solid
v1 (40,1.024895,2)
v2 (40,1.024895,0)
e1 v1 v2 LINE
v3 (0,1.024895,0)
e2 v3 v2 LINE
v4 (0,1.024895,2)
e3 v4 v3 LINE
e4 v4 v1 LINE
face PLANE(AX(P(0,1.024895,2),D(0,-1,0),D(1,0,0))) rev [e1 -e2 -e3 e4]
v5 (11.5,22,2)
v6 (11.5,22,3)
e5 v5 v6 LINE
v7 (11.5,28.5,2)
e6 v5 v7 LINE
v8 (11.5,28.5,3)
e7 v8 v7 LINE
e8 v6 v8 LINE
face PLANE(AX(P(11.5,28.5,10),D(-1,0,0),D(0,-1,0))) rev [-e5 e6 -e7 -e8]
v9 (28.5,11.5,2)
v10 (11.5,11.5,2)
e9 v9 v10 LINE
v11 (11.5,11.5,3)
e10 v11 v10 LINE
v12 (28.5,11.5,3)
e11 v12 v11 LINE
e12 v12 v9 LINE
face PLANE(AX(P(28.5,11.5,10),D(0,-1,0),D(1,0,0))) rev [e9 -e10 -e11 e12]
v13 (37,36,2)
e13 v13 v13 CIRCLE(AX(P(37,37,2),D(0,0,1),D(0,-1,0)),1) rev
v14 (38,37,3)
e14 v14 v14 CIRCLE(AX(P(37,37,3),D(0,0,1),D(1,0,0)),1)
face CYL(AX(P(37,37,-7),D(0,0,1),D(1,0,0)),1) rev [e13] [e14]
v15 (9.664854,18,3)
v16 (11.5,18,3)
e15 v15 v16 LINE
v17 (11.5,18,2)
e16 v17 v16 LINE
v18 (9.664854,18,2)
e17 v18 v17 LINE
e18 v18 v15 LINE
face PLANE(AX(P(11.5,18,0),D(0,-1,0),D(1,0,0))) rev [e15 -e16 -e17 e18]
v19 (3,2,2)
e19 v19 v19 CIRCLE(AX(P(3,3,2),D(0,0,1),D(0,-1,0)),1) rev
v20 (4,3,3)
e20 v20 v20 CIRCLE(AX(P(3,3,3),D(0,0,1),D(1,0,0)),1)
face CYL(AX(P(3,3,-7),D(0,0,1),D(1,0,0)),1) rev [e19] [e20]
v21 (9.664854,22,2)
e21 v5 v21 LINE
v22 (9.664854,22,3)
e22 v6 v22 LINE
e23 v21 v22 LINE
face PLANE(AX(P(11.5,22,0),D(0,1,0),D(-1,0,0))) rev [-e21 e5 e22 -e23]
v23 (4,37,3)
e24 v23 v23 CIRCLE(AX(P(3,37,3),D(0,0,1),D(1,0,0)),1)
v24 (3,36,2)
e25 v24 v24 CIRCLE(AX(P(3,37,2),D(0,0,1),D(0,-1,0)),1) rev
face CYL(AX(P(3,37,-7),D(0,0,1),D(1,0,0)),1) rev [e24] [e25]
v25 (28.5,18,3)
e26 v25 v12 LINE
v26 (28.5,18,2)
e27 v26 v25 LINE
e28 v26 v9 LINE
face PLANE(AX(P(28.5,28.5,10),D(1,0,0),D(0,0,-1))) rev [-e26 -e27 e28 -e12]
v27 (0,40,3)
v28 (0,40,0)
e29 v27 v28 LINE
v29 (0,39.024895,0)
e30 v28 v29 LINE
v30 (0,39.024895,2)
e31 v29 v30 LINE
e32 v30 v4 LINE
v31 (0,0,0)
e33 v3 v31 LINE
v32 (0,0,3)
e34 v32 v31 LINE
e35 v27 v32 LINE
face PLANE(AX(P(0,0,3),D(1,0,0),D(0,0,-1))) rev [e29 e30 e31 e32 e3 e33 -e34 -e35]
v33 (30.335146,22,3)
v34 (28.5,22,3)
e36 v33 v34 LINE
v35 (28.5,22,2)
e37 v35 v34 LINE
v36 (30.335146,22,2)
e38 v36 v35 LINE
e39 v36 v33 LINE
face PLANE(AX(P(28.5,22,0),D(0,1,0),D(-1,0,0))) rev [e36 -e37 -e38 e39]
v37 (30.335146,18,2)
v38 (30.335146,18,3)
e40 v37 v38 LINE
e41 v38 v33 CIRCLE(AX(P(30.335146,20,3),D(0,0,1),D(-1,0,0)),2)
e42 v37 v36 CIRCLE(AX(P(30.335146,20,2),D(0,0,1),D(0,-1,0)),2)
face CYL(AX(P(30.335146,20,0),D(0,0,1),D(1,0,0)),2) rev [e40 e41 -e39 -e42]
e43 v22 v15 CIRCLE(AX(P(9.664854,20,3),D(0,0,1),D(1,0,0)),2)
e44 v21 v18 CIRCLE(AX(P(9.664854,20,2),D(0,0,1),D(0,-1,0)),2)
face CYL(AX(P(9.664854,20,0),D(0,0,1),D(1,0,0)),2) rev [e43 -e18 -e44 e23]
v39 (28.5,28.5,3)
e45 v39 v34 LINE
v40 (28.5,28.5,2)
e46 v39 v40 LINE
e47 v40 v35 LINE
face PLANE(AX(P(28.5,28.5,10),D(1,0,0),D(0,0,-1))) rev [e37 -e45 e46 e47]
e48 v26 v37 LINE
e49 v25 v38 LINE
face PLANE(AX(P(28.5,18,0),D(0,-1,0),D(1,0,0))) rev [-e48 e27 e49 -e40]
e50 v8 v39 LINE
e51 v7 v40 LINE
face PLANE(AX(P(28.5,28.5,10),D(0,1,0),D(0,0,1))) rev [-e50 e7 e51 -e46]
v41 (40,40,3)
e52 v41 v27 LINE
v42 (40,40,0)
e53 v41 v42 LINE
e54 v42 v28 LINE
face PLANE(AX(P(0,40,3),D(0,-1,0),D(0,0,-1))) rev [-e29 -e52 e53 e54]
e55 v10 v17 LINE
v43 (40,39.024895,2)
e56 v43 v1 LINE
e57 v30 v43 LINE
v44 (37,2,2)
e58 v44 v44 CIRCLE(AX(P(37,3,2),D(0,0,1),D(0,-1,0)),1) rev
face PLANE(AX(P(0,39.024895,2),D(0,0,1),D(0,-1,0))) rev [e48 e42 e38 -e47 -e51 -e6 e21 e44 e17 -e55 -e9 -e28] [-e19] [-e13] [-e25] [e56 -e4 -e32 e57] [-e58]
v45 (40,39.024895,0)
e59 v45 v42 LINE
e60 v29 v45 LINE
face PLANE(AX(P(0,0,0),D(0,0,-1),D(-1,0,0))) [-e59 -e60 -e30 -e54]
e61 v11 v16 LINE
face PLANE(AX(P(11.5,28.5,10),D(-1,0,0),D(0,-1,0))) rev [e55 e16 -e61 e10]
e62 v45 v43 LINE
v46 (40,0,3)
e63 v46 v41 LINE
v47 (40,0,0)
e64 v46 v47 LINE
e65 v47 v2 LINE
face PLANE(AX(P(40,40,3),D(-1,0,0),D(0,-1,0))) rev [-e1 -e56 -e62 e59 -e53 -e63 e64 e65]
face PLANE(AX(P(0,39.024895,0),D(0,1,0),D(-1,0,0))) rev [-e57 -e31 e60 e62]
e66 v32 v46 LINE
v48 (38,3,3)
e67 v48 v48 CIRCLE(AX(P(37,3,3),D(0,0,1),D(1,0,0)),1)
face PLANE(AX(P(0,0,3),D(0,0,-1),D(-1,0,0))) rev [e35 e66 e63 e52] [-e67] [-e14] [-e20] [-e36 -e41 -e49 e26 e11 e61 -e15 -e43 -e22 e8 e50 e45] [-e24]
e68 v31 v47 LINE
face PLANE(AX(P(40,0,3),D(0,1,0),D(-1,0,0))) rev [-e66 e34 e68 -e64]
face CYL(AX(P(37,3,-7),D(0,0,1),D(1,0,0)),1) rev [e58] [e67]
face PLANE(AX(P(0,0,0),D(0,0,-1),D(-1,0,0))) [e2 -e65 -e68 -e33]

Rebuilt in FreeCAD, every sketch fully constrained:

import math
import FreeCAD as App
import Part
import Sketcher

doc = App.newDocument("Part")
params = doc.addObject("Spreadsheet::Sheet", "Params")
for row, (alias, value) in enumerate([
    ("sketch1_width", "40 mm"),
    ("pad1_length", "3 mm"),
    ("sketch2_diameter", "2 mm"),
    ("pocket1_length", "10 mm"),
    ("sketch3_width", "17 mm"),
    ("pocket2_length", "10 mm"),
    ("sketch4_width", "38 mm"),
    ("sketch4_height", "2 mm"),
    ("sketch5_radius", "2 mm"),
], start=1):
    params.set(f"A{row}", alias)
    params.set(f"B{row}", "=" + value)
    params.setAlias(f"B{row}", alias)

body = doc.addObject("PartDesign::Body", "Body")

# Sketch on XY plane
sketch1 = body.newObject("Sketcher::SketchObject", "Sketch")
sketch1.AttachmentSupport = (doc.getObject("XY_Plane"), [""])
sketch1.MapMode = "FlatFace"
sketch1.addGeometry([
    Part.LineSegment(App.Vector(0, 40, 0), App.Vector(0, 0, 0)),
    Part.LineSegment(App.Vector(0, 0, 0), App.Vector(40, 0, 0)),
    Part.LineSegment(App.Vector(40, 0, 0), App.Vector(40, 40, 0)),
    Part.LineSegment(App.Vector(40, 40, 0), App.Vector(0, 40, 0)),
], False)
sketch1.addConstraint([
    Sketcher.Constraint("Coincident", 0, 2, 1, 1),
    Sketcher.Constraint("Coincident", 1, 2, 2, 1),
    Sketcher.Constraint("Coincident", 2, 2, 3, 1),
    Sketcher.Constraint("Coincident", 3, 2, 0, 1),
    Sketcher.Constraint("Vertical", 0),
    Sketcher.Constraint("Horizontal", 1),
    Sketcher.Constraint("Vertical", 2),
    Sketcher.Constraint("Horizontal", 3),
    Sketcher.Constraint("Coincident", 0, 2, -1, 1),
    Sketcher.Constraint("Equal", 3, 0),
    Sketcher.Constraint("DistanceX", 1, 1, 1, 2, 40.0),
])
sketch1.setExpression("Constraints[10]", "Params.sketch1_width")
pad1 = body.newObject("PartDesign::Pad", "Pad")
pad1.Profile = sketch1
pad1.setExpression("Length", "Params.pad1_length")

# Sketch on XY plane
sketch2 = body.newObject("Sketcher::SketchObject", "Sketch001")
sketch2.AttachmentSupport = (doc.getObject("XY_Plane"), [""])
sketch2.MapMode = "FlatFace"
sketch2.AttachmentOffset = App.Placement(App.Vector(0, 0, 3), App.Rotation())
sketch2.addGeometry([
    Part.Circle(App.Vector(3, 37, 0), App.Vector(0, 0, 1), 1),
    Part.Circle(App.Vector(3, 3, 0), App.Vector(0, 0, 1), 1),
    Part.Circle(App.Vector(37, 37, 0), App.Vector(0, 0, 1), 1),
    Part.Circle(App.Vector(37, 3, 0), App.Vector(0, 0, 1), 1),
], False)
sketch2.addConstraint([
    Sketcher.Constraint("Equal", 0, 1),
    Sketcher.Constraint("Equal", 1, 2),
    Sketcher.Constraint("Equal", 2, 3),
    Sketcher.Constraint("Horizontal", 0, 3, 2, 3),
    Sketcher.Constraint("Horizontal", 1, 3, 3, 3),
    Sketcher.Constraint("Vertical", 0, 3, 1, 3),
    Sketcher.Constraint("Vertical", 2, 3, 3, 3),
    Sketcher.Constraint("Diameter", 0, 2.0),
    Sketcher.Constraint("DistanceX", -1, 1, 0, 3, 3.0),
    Sketcher.Constraint("DistanceY", -1, 1, 0, 3, 37.0),
    Sketcher.Constraint("DistanceY", -1, 1, 1, 3, 3.0),
    Sketcher.Constraint("DistanceX", -1, 1, 2, 3, 37.0),
])
sketch2.setExpression("Constraints[7]", "Params.sketch2_diameter")
pocket1 = body.newObject("PartDesign::Pocket", "Pocket")
pocket1.Profile = sketch2
pocket1.setExpression("Length", "Params.pocket1_length")

# Sketch on XY plane
sketch3 = body.newObject("Sketcher::SketchObject", "Sketch002")
sketch3.AttachmentSupport = (doc.getObject("XY_Plane"), [""])
sketch3.MapMode = "FlatFace"
sketch3.addGeometry([
    Part.LineSegment(App.Vector(28, 28, 0), App.Vector(28, 12, 0)),
    Part.LineSegment(App.Vector(28, 12, 0), App.Vector(12, 12, 0)),
    Part.LineSegment(App.Vector(12, 12, 0), App.Vector(12, 28, 0)),
    Part.LineSegment(App.Vector(12, 28, 0), App.Vector(28, 28, 0)),
], False)
sketch3.addConstraint([
    Sketcher.Constraint("Coincident", 0, 2, 1, 1),
    Sketcher.Constraint("Coincident", 1, 2, 2, 1),
    Sketcher.Constraint("Coincident", 2, 2, 3, 1),
    Sketcher.Constraint("Coincident", 3, 2, 0, 1),
    Sketcher.Constraint("Vertical", 0),
    Sketcher.Constraint("Horizontal", 1),
    Sketcher.Constraint("Vertical", 2),
    Sketcher.Constraint("Horizontal", 3),
    Sketcher.Constraint("Equal", 3, 0),
    Sketcher.Constraint("DistanceX", 1, 2, 1, 1, 17.0),
    Sketcher.Constraint("DistanceX", -1, 1, 0, 2, 28.5),
    Sketcher.Constraint("DistanceY", -1, 1, 0, 2, 11.5),
])
sketch3.setExpression("Constraints[9]", "Params.sketch3_width")
pocket2 = body.newObject("PartDesign::Pocket", "Pocket001")
pocket2.Profile = sketch3
pocket2.setExpression("Length", "Params.pocket2_length")
pocket2.Reversed = True

# Sketch on YZ plane
sketch4 = body.newObject("Sketcher::SketchObject", "Sketch003")
sketch4.AttachmentSupport = (doc.getObject("YZ_Plane"), [""])
sketch4.MapMode = "FlatFace"
sketch4.AttachmentOffset = App.Placement(App.Vector(0, 0, 40), App.Rotation())
sketch4.addGeometry([
    Part.LineSegment(App.Vector(39, 2, 0), App.Vector(1, 2, 0)),
    Part.LineSegment(App.Vector(1, 2, 0), App.Vector(1, 0, 0)),
    Part.LineSegment(App.Vector(1, 0, 0), App.Vector(39, 0, 0)),
    Part.LineSegment(App.Vector(39, 0, 0), App.Vector(39, 2, 0)),
], False)
sketch4.addConstraint([
    Sketcher.Constraint("Coincident", 0, 2, 1, 1),
    Sketcher.Constraint("Coincident", 1, 2, 2, 1),
    Sketcher.Constraint("Coincident", 2, 2, 3, 1),
    Sketcher.Constraint("Coincident", 3, 2, 0, 1),
    Sketcher.Constraint("Horizontal", 0),
    Sketcher.Constraint("Vertical", 1),
    Sketcher.Constraint("Horizontal", 2),
    Sketcher.Constraint("Vertical", 3),
    Sketcher.Constraint("PointOnObject", 1, 2, -1),
    Sketcher.Constraint("DistanceX", 0, 2, 0, 1, 38.0),
    Sketcher.Constraint("DistanceY", 1, 2, 1, 1, 2.0),
    Sketcher.Constraint("DistanceX", -1, 1, 0, 2, 1.024895),
])
sketch4.setExpression("Constraints[9]", "Params.sketch4_width")
sketch4.setExpression("Constraints[10]", "Params.sketch4_height")
pocket3 = body.newObject("PartDesign::Pocket", "Pocket002")
pocket3.Profile = sketch4
pocket3.Type = "ThroughAll"

# Sketch on XY plane
sketch5 = body.newObject("Sketcher::SketchObject", "Sketch004")
sketch5.AttachmentSupport = (doc.getObject("XY_Plane"), [""])
sketch5.MapMode = "FlatFace"
sketch5.AttachmentOffset = App.Placement(App.Vector(0, 0, 3), App.Rotation())
sketch5.addGeometry([
    Part.LineSegment(App.Vector(11.5, 22, 0), App.Vector(9.7, 22, 0)),  # 0
    Part.ArcOfCircle(Part.Circle(App.Vector(9.7, 20, 0), App.Vector(0, 0, 1), 2), math.radians(90), math.radians(270)),  # 1
    Part.LineSegment(App.Vector(9.7, 18, 0), App.Vector(11.5, 18, 0)),  # 2
    Part.LineSegment(App.Vector(11.5, 18, 0), App.Vector(11.5, 22, 0)),  # 3
    Part.LineSegment(App.Vector(30.3, 22, 0), App.Vector(28.5, 22, 0)),  # 4
    Part.LineSegment(App.Vector(28.5, 22, 0), App.Vector(28.5, 18, 0)),  # 5
    Part.LineSegment(App.Vector(28.5, 18, 0), App.Vector(30.3, 18, 0)),  # 6
    Part.ArcOfCircle(Part.Circle(App.Vector(30.3, 20, 0), App.Vector(0, 0, 1), 2), math.radians(-90), math.radians(90)),  # 7
], False)
sketch5.addConstraint([
    Sketcher.Constraint("Tangent", 0, 2, 1, 1),
    Sketcher.Constraint("Tangent", 1, 2, 2, 1),
    Sketcher.Constraint("Coincident", 2, 2, 3, 1),
    Sketcher.Constraint("Coincident", 3, 2, 0, 1),
    Sketcher.Constraint("Coincident", 4, 2, 5, 1),
    Sketcher.Constraint("Coincident", 5, 2, 6, 1),
    Sketcher.Constraint("Tangent", 6, 2, 7, 1),
    Sketcher.Constraint("Tangent", 7, 2, 4, 1),
    Sketcher.Constraint("Horizontal", 0),
    Sketcher.Constraint("Horizontal", 2),
    Sketcher.Constraint("Vertical", 3),
    Sketcher.Constraint("Horizontal", 4),
    Sketcher.Constraint("Vertical", 5),
    Sketcher.Constraint("Horizontal", 6),
    Sketcher.Constraint("Equal", 1, 7),
    Sketcher.Constraint("Horizontal", 1, 3, 7, 3),
    Sketcher.Constraint("Equal", 2, 4),
    Sketcher.Constraint("Radius", 1, 2.0),
    Sketcher.Constraint("DistanceY", -1, 1, 1, 3, 20.0),
    Sketcher.Constraint("DistanceX", 3, 2, 4, 2, 17.0),
    Sketcher.Constraint("DistanceX", -1, 1, 2, 2, 11.5),
    Sketcher.Constraint("DistanceX", 0, 2, 0, 1, 1.835146),
])
sketch5.setExpression("Constraints[17]", "Params.sketch5_radius")
pocket4 = body.newObject("PartDesign::Pocket", "Pocket003")
pocket4.Profile = sketch5
pocket4.Type = "ThroughAll"

doc.recompute()
